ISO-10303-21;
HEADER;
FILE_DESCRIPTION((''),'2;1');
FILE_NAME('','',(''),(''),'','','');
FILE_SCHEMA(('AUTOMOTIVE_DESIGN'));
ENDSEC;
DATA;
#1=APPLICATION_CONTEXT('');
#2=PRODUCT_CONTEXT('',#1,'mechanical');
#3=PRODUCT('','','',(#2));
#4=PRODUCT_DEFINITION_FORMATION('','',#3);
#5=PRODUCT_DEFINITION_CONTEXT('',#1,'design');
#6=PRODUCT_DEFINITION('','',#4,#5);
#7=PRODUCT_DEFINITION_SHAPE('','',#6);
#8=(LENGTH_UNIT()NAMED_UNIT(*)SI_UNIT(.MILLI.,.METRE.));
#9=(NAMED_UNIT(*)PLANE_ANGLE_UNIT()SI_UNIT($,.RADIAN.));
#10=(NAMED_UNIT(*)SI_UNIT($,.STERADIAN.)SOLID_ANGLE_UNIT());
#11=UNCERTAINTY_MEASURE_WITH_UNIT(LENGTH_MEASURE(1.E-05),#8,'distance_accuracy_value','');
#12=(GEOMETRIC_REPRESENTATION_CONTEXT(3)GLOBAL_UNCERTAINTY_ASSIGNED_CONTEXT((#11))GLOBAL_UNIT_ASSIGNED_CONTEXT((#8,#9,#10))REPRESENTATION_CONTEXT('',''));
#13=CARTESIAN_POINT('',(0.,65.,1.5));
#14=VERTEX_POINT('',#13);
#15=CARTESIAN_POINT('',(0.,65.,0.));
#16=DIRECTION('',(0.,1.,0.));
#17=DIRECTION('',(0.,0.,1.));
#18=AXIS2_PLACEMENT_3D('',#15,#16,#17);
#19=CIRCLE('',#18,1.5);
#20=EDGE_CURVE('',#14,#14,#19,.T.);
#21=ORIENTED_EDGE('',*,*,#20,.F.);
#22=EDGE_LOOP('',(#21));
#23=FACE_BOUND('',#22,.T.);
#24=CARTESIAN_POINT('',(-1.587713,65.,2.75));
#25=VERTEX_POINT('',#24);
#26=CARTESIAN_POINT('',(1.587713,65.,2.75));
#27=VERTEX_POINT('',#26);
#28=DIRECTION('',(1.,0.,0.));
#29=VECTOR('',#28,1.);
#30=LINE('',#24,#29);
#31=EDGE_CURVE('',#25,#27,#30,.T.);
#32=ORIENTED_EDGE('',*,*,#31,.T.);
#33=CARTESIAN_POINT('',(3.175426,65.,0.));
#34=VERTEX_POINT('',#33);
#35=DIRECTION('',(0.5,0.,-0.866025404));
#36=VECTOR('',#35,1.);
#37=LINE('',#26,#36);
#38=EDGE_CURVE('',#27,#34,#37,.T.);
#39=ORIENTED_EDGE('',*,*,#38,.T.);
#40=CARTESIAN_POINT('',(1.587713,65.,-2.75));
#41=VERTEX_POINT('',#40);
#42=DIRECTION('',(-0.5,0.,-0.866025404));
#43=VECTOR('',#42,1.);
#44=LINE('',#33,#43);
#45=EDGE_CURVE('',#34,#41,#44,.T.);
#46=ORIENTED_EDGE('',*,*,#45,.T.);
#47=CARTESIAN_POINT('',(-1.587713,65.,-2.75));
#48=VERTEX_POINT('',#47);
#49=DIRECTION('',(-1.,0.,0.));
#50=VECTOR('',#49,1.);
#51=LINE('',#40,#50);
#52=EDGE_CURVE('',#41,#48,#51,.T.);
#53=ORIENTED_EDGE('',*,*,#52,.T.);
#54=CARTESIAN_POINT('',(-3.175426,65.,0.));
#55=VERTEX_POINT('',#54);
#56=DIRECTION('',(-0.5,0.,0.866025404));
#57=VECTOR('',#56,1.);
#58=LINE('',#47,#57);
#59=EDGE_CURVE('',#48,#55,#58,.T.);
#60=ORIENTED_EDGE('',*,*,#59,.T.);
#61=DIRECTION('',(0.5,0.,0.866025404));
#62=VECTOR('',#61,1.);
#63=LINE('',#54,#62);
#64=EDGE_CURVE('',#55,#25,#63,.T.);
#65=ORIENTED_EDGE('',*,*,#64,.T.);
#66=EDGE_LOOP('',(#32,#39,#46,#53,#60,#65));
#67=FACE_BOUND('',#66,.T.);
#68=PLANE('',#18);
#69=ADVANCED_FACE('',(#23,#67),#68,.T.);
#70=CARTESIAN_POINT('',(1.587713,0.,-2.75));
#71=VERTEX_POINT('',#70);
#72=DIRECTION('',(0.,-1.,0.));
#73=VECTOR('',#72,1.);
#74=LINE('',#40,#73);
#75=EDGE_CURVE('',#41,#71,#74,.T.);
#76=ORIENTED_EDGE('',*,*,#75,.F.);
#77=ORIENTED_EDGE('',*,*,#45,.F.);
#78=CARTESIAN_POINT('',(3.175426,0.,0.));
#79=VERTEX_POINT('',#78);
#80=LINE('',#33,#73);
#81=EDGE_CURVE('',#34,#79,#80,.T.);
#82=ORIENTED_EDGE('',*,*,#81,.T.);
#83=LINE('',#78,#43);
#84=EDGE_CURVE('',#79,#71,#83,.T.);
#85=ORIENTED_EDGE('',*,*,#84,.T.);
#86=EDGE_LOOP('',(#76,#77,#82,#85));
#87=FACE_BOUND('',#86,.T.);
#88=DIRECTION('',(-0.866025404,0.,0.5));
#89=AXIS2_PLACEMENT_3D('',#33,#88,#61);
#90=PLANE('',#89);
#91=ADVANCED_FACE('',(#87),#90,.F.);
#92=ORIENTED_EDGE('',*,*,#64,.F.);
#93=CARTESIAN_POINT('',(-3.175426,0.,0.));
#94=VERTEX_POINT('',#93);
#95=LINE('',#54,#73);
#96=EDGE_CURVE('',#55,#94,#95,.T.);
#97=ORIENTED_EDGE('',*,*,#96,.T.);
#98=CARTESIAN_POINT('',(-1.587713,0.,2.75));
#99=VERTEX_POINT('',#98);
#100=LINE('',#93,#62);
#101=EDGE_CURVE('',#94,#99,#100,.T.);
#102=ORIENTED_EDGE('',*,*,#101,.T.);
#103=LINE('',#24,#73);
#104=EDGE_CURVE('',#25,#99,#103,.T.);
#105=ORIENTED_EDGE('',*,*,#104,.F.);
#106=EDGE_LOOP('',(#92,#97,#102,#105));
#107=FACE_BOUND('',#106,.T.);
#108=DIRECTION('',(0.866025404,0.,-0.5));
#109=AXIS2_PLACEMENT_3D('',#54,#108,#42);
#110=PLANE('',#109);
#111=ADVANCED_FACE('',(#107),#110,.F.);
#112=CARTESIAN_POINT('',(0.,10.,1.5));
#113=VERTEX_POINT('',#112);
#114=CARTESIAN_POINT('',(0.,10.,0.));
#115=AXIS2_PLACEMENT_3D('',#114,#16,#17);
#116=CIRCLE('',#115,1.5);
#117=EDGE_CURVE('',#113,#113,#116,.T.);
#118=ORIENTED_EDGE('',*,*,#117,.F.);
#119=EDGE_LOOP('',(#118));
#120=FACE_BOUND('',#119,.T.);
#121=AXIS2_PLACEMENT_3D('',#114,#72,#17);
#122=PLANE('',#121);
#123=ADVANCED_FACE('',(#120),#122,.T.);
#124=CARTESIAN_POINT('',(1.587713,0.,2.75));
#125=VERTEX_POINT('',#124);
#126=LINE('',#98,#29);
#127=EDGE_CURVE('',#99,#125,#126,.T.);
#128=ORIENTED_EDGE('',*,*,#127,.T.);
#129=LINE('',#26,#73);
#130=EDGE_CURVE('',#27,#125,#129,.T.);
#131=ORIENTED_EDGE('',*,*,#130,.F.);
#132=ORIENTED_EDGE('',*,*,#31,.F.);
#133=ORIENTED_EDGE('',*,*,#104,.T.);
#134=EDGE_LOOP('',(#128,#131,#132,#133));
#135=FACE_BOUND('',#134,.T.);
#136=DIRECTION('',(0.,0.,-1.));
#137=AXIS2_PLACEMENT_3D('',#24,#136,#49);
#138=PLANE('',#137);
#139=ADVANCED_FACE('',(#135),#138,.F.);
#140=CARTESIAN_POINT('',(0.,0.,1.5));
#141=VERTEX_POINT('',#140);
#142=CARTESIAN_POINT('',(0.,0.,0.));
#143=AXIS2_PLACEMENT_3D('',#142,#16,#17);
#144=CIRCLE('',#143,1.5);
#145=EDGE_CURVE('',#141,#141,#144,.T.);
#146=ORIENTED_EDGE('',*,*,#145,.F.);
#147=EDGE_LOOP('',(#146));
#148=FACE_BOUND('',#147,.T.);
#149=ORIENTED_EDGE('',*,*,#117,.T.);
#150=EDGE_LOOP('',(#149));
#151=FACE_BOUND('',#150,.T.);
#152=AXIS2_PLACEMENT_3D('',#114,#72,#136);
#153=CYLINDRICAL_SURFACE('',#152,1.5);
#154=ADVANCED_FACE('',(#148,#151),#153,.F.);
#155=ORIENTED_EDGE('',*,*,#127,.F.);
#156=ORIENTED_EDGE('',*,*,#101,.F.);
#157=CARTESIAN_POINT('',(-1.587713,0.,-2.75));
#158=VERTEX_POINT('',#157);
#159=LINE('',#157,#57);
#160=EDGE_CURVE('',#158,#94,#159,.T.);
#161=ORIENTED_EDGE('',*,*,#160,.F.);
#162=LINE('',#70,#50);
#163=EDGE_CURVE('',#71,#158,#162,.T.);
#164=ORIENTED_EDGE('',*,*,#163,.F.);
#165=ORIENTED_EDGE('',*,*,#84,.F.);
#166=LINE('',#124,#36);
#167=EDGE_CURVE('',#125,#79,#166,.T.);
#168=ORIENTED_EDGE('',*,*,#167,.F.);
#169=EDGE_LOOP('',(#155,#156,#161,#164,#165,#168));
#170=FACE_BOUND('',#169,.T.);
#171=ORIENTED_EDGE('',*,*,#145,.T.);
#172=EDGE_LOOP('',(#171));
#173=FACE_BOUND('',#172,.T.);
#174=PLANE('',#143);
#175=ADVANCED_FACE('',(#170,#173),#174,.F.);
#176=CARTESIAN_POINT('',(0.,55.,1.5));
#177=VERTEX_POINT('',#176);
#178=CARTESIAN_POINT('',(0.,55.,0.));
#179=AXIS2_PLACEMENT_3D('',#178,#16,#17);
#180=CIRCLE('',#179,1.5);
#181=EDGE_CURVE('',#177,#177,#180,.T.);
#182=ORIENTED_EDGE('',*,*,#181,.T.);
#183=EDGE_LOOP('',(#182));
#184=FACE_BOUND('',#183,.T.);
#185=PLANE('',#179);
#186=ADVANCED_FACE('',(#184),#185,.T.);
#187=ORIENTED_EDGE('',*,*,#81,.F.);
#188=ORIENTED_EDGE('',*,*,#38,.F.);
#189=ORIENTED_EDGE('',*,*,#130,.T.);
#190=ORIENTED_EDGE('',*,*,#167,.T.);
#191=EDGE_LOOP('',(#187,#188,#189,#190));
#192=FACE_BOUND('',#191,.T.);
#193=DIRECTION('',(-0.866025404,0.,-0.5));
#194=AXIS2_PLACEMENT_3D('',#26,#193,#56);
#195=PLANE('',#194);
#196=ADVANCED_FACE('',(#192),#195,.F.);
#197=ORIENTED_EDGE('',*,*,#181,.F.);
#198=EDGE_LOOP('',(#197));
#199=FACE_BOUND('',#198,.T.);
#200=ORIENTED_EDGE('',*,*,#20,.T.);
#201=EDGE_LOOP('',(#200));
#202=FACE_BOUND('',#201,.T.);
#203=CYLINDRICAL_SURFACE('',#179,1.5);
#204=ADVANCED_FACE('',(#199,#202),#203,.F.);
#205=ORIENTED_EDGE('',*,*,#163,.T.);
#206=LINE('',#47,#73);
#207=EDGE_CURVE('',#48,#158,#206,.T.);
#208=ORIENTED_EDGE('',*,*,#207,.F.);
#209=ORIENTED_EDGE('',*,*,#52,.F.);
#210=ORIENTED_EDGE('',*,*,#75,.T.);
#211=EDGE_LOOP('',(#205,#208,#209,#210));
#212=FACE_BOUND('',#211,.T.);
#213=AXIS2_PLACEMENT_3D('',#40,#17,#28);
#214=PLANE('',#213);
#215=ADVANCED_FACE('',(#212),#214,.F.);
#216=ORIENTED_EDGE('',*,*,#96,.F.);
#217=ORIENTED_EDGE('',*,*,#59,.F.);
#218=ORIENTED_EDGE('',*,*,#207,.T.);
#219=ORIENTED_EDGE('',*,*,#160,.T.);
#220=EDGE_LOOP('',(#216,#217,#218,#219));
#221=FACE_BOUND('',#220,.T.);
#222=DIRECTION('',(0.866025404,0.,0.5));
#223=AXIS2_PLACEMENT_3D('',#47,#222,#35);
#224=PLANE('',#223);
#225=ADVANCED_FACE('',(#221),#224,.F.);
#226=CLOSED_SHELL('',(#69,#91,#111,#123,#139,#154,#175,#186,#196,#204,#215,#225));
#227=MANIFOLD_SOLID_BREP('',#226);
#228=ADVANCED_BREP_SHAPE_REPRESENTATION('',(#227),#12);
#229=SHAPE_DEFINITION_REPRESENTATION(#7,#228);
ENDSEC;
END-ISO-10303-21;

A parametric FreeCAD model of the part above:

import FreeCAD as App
import Part
import Sketcher
from FreeCAD import Vector
Q = App.Units.Quantity


def add_polygon(sketch, points):
    """Adds a closed chain of lines whose ends are joined by coincident constraints."""
    first, n = sketch.GeometryCount, len(points)
    for a, b in zip(points, points[1:] + points[:1]):
        sketch.addGeometry(Part.LineSegment(App.Vector(*a, 0), App.Vector(*b, 0)), False)
    for i in range(n):
        sketch.addConstraint(Sketcher.Constraint("Coincident", first + i, 2, first + (i + 1) % n, 1))

doc = App.newDocument("Part")
body = doc.addObject("PartDesign::Body", "Body")

sketch1 = body.newObject("Sketcher::SketchObject", "Sketch")
sketch1.AttachmentSupport = (doc.getObject("XZ_Plane"), [""])
sketch1.MapMode = "FlatFace"
add_polygon(sketch1, [(3.2, 0), (1.6, -2.8), (-1.6, -2.8), (-3.2, 0), (-1.6, 2.8), (1.6, 2.8)])
sketch1.addConstraint([
    Sketcher.Constraint("Horizontal", 1),
    Sketcher.Constraint("Horizontal", 4),
    Sketcher.Constraint("Symmetric", 0, 2, 3, 2, -1, 1),
    Sketcher.Constraint("Symmetric", 2, 2, 5, 2, -1, 1),
    Sketcher.Constraint("PointOnObject", 2, 2, -1),
    Sketcher.Constraint("Parallel", 2, 5),
    Sketcher.Constraint("Vertical", 1, 2, 3, 2),
    Sketcher.Constraint("Angle", 0, Q("-120 deg")),
    Sketcher.Constraint("DistanceY", 1, 2, 3, 2, 5.5),
    Sketcher.Constraint("DistanceX", 1, 2, 1, 1, 3.175426),
])
pad1 = body.newObject("PartDesign::Pad", "Pad")
pad1.Profile = sketch1
pad1.Length = 65
pad1.Reversed = True

sketch2 = body.newObject("Sketcher::SketchObject", "Sketch001")
sketch2.AttachmentSupport = (doc.getObject("XZ_Plane"), [""])
sketch2.MapMode = "FlatFace"
sketch2.AttachmentOffset = App.Placement(Vector(0, 0, -65), App.Rotation())
sketch2.addGeometry(Part.Circle(Vector(0, 0, 0), Vector(0, 0, 1), 1.5), False)
sketch2.addConstraint([
    Sketcher.Constraint("Coincident", 0, 3, -1, 1),
    Sketcher.Constraint("Diameter", 0, 3.0),
])
pocket1 = body.newObject("PartDesign::Pocket", "Pocket")
pocket1.Profile = sketch2
pocket1.Length = 10
pocket1.Reversed = True
doc.recompute()

datumplane = body.newObject("PartDesign::Plane", "DatumPlane")
datumplane.AttachmentSupport = (doc.getObject("XZ_Plane"), [""])
datumplane.MapMode = "FlatFace"
datumplane.AttachmentOffset = App.Placement(Vector(0, 0, -32.5), App.Rotation())
mirrored = body.newObject("PartDesign::Mirrored", "Mirrored")
mirrored.Originals = [pocket1]
mirrored.MirrorPlane = (datumplane, [""])
body.Tip = mirrored

doc.recompute()
